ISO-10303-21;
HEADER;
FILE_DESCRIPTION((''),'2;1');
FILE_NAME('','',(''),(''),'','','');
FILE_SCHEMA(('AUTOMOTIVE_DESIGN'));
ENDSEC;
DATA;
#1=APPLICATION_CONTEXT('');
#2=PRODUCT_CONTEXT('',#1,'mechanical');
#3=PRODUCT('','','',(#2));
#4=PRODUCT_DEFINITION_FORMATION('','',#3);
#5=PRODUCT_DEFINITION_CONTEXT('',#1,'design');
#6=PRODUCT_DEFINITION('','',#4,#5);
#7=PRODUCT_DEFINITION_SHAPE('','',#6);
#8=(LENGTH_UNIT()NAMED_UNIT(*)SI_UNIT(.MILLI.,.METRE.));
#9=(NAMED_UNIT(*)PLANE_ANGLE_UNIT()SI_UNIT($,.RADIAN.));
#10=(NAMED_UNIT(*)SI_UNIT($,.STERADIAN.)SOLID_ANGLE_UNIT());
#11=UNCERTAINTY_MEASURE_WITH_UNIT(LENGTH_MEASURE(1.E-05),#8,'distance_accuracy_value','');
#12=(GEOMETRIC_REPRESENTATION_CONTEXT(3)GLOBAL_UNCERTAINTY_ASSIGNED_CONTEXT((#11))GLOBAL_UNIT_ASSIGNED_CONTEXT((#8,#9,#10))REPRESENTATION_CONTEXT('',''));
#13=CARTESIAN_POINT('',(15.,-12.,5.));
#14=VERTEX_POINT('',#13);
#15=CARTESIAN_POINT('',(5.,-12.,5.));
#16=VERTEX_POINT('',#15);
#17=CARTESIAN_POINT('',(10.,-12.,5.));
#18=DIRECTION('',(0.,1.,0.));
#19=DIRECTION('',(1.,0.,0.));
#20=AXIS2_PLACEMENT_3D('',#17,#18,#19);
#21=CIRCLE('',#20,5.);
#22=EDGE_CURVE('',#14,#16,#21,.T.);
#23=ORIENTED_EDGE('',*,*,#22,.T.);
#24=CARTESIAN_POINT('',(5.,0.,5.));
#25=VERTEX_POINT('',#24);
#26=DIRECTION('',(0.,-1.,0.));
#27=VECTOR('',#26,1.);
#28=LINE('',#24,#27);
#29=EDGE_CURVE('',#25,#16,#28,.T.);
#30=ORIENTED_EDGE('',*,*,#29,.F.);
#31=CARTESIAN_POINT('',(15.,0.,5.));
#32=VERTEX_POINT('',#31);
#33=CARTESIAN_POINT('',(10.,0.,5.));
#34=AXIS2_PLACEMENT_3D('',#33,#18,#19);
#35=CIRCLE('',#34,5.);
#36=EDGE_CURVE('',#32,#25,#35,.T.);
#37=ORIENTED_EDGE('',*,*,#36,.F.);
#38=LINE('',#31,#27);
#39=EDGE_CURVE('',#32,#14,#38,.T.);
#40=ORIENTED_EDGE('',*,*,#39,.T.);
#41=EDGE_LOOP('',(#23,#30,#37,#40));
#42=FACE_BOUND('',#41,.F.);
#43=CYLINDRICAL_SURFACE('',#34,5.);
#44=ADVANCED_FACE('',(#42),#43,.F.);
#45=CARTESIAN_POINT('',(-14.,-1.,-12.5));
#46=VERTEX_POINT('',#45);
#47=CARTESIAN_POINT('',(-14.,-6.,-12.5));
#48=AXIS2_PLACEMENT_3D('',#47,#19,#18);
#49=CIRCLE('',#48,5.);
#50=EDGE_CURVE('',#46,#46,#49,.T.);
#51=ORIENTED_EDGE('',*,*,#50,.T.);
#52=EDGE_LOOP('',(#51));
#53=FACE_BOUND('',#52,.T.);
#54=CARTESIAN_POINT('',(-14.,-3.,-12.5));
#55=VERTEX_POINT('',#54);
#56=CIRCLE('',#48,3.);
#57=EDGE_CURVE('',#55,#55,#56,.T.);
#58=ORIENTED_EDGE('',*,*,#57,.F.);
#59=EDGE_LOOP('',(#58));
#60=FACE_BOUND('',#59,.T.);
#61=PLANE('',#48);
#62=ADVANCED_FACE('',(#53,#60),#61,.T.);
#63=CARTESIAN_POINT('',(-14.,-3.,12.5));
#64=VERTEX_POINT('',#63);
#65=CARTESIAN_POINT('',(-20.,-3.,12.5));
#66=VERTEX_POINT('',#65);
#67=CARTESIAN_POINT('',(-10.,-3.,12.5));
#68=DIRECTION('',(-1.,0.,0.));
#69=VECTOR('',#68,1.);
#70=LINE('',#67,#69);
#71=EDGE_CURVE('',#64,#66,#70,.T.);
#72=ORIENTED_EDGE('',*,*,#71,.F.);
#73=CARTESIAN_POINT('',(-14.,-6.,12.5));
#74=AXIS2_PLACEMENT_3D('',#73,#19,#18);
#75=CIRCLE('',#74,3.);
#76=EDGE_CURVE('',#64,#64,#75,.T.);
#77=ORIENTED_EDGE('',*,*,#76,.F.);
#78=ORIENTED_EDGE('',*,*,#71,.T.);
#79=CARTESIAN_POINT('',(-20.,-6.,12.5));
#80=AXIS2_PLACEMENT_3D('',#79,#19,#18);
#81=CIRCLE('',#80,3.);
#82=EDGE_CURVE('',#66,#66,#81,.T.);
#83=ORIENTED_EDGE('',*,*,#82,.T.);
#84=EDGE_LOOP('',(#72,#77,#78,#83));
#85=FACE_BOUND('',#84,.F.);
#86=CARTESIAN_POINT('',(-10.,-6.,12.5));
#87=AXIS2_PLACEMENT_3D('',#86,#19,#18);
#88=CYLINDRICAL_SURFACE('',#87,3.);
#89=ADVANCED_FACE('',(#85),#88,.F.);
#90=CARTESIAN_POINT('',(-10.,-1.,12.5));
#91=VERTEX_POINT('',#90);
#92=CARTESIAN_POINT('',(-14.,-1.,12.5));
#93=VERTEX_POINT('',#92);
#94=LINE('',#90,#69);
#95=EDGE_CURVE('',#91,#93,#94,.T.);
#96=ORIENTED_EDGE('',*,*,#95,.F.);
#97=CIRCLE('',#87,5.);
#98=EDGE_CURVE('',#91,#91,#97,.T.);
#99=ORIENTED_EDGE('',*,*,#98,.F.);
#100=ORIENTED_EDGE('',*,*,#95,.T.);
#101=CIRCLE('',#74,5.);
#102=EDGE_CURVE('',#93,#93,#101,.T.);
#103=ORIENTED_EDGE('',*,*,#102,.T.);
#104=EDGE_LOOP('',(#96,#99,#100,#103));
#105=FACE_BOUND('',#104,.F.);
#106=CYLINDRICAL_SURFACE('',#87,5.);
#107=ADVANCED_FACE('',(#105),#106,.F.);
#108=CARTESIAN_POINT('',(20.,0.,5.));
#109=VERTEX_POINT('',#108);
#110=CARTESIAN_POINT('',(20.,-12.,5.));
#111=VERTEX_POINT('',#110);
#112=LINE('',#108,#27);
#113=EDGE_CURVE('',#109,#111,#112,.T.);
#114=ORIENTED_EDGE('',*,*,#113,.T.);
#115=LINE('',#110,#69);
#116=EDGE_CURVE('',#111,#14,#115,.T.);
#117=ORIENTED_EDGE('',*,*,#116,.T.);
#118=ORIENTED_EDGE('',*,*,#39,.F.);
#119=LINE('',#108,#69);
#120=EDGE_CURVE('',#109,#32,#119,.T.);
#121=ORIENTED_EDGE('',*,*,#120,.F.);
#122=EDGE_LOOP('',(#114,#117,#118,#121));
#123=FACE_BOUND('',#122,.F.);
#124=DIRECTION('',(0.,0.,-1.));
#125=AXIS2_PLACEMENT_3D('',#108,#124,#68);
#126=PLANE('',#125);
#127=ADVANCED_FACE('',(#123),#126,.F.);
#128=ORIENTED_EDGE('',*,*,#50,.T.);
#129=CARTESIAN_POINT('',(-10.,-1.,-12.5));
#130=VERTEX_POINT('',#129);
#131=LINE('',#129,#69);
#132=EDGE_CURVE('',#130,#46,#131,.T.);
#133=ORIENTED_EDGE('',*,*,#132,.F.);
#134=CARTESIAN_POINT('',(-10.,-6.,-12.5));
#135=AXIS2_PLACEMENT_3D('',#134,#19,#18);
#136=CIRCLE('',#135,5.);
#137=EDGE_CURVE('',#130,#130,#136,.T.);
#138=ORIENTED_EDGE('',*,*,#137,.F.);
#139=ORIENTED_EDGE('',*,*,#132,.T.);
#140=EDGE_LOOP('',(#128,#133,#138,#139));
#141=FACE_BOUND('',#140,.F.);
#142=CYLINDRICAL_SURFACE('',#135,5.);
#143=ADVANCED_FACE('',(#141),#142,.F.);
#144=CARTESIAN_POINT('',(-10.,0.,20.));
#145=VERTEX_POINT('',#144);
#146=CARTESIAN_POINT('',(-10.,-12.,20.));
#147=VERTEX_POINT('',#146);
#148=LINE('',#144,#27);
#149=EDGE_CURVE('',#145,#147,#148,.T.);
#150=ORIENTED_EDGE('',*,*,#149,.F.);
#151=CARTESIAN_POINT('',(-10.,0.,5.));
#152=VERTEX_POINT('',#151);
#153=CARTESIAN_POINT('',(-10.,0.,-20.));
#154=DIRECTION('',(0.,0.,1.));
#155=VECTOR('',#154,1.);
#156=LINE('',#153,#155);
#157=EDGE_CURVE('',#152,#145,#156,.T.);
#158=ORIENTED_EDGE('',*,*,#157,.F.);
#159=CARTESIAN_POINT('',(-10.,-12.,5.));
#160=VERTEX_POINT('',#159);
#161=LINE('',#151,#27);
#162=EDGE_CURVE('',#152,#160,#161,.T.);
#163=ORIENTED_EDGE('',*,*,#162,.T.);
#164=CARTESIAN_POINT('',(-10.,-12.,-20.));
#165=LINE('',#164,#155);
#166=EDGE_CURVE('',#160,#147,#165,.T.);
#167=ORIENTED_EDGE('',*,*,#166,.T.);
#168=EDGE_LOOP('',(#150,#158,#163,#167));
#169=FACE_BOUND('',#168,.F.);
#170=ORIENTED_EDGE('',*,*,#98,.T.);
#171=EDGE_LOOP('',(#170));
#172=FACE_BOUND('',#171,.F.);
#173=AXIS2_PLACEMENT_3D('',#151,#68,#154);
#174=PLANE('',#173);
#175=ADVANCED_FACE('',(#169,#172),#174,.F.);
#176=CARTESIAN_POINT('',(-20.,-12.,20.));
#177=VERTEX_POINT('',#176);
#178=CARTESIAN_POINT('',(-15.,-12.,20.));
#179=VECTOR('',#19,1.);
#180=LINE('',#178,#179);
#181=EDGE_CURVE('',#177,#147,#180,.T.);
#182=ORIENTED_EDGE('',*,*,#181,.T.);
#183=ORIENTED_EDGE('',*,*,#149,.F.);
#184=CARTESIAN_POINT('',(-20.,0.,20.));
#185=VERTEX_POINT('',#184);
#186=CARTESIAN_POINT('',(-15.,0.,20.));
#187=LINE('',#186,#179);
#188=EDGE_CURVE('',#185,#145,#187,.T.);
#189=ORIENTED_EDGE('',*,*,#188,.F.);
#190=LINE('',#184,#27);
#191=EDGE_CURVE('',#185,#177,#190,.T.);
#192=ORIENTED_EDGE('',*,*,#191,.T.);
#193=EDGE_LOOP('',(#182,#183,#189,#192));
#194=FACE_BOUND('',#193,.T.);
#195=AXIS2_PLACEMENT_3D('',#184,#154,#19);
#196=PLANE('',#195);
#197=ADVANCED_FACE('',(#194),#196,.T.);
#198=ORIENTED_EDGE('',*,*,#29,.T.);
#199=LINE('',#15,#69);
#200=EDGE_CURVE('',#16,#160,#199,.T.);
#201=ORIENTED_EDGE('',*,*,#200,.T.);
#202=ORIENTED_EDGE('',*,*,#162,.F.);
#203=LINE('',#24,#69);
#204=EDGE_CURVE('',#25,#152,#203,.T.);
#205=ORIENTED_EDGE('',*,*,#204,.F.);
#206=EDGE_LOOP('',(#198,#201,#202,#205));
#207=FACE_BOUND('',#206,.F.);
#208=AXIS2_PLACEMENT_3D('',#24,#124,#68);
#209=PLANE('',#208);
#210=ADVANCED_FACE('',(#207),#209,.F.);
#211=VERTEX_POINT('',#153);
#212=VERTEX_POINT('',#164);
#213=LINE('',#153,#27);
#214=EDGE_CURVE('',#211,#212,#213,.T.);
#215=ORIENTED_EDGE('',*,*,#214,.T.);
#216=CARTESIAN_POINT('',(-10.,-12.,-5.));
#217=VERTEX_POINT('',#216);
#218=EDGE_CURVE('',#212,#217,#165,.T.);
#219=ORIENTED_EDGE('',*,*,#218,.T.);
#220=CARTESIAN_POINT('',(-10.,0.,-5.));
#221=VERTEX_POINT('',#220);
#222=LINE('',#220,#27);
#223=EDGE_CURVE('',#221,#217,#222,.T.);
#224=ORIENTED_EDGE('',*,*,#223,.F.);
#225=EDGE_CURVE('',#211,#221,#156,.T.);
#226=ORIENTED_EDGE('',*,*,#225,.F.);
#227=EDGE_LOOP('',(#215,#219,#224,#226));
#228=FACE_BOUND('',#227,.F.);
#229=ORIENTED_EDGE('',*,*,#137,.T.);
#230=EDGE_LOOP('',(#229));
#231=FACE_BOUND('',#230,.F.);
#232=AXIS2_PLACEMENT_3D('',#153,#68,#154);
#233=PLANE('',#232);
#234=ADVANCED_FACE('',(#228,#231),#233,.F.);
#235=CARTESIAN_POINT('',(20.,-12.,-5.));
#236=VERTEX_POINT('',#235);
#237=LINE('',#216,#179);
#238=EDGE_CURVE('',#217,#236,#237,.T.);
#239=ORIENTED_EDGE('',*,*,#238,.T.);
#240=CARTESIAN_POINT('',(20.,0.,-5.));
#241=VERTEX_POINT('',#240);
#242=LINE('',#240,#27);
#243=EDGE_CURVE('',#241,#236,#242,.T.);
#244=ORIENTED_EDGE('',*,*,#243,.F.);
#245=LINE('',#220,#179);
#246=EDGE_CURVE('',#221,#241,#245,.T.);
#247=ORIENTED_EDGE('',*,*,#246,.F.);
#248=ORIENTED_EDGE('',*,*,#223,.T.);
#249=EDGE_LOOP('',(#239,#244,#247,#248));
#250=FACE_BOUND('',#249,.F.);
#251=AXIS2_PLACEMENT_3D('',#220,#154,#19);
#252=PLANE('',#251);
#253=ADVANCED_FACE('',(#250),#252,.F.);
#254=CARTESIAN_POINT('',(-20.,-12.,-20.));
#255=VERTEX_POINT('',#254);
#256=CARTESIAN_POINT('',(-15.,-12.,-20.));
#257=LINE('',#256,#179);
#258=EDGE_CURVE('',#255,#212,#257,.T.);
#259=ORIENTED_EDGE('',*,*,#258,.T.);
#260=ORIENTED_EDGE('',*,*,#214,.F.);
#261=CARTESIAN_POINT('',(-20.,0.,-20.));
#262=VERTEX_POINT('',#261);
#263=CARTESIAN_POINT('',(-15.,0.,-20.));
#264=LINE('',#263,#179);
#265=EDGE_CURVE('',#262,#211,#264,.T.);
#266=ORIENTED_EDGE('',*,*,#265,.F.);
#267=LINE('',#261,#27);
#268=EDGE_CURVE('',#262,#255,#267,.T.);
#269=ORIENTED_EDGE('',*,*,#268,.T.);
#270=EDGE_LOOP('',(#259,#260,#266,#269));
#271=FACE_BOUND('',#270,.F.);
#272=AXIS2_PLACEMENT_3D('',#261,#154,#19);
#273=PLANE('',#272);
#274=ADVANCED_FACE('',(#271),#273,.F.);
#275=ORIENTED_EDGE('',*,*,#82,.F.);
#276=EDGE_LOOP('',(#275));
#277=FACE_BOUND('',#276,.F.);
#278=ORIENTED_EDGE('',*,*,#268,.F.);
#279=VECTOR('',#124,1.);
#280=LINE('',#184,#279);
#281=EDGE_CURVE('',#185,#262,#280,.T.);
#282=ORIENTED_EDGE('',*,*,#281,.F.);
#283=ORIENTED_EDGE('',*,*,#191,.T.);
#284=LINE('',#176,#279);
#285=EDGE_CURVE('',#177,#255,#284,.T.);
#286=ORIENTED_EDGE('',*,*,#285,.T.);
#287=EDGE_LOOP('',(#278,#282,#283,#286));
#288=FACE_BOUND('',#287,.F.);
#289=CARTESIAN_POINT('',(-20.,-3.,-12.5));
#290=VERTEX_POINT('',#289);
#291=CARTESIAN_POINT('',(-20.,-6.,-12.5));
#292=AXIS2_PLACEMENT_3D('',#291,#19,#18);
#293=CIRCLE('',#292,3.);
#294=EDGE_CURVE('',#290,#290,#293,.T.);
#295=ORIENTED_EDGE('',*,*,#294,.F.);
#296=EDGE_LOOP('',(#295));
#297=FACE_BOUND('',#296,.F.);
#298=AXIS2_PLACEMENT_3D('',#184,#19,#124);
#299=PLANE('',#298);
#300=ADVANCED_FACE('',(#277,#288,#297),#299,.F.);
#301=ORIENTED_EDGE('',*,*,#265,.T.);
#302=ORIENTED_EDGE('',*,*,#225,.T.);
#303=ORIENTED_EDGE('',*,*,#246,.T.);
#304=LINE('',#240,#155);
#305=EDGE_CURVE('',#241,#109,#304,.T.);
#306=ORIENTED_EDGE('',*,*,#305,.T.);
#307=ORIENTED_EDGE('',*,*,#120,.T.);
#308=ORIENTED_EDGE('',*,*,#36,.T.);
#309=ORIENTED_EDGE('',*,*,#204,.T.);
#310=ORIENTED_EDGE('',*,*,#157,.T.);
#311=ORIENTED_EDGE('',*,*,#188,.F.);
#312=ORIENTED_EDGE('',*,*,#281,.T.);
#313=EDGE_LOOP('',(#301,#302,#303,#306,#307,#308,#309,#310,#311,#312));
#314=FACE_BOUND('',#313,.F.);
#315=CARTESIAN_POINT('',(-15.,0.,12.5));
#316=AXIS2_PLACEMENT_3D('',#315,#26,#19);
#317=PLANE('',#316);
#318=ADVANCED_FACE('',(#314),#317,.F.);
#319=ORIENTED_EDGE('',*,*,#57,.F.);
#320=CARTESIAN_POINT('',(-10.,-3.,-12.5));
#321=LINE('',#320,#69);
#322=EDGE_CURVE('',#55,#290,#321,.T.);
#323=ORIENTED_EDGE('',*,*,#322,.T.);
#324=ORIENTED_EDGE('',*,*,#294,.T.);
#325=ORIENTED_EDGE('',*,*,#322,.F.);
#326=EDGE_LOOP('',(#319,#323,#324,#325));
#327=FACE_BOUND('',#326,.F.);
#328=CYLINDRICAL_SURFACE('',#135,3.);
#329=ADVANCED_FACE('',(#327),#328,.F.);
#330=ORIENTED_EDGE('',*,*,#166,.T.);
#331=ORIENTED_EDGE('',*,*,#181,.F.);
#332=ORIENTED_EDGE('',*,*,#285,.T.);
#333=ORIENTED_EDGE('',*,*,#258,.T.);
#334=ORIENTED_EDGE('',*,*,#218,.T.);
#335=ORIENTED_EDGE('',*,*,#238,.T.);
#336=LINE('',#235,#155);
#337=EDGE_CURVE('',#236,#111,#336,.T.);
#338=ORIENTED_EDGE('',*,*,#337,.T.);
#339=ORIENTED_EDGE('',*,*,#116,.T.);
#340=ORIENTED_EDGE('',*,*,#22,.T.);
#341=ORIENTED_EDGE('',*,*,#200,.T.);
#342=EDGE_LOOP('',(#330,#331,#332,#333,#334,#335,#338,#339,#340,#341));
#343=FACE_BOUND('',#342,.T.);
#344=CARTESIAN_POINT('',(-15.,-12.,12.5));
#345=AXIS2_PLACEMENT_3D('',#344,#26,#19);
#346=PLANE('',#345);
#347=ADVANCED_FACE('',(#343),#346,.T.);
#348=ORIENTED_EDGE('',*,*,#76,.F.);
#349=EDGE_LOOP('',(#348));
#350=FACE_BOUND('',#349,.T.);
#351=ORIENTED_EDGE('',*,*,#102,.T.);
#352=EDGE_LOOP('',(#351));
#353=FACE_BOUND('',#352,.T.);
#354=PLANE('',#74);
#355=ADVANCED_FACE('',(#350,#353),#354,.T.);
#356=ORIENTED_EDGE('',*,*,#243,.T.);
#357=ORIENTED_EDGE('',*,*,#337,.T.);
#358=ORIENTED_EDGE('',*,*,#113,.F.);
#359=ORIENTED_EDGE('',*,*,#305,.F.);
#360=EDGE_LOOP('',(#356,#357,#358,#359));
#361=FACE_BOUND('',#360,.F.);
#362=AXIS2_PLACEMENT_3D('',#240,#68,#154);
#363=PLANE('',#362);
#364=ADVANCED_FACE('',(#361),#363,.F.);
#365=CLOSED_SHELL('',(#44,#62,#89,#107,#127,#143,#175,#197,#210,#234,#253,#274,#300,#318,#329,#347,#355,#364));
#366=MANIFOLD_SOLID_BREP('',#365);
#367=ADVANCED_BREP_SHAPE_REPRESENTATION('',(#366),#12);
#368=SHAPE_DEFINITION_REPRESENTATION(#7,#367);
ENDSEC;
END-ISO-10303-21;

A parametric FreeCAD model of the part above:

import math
import FreeCAD as App
import Part
import Sketcher
from FreeCAD import Vector
Q = App.Units.Quantity

doc = App.newDocument("Part")
body = doc.addObject("PartDesign::Body", "Body")

sketch1 = doc.addObject("Sketcher::SketchObject", "Sketch")
body.addObject(sketch1)
sketch1.AttachmentSupport = (doc.XZ_Plane, [""])
sketch1.MapMode = "FlatFace"
sketch1.addGeometry([
    Part.LineSegment(Vector(-20, 20, 0), Vector(-20, -20, 0)),
    Part.LineSegment(Vector(-20, -20, 0), Vector(-10, -20, 0)),
    Part.LineSegment(Vector(-10, -20, 0), Vector(-10, -5, 0)),
    Part.LineSegment(Vector(-10, -5, 0), Vector(20, -5, 0)),
    Part.LineSegment(Vector(20, -5, 0), Vector(20, 5, 0)),
    Part.LineSegment(Vector(20, 5, 0), Vector(15, 5, 0)),
    Part.ArcOfCircle(Part.Circle(Vector(10, 5, 0), Vector(0, 0, 1), 5), math.radians(180), math.radians(360)),
    Part.LineSegment(Vector(5, 5, 0), Vector(-10, 5, 0)),
    Part.LineSegment(Vector(-10, 5, 0), Vector(-10, 20, 0)),
    Part.LineSegment(Vector(-10, 20, 0), Vector(-20, 20, 0)),
], False)
sketch1.addConstraint([
    Sketcher.Constraint("Coincident", 0, 2, 1, 1),
    Sketcher.Constraint("Coincident", 1, 2, 2, 1),
    Sketcher.Constraint("Coincident", 2, 2, 3, 1),
    Sketcher.Constraint("Coincident", 3, 2, 4, 1),
    Sketcher.Constraint("Coincident", 4, 2, 5, 1),
    Sketcher.Constraint("Coincident", 5, 2, 6, 2),
    Sketcher.Constraint("Coincident", 6, 1, 7, 1),
    Sketcher.Constraint("Coincident", 7, 2, 8, 1),
    Sketcher.Constraint("Coincident", 8, 2, 9, 1),
    Sketcher.Constraint("Coincident", 9, 2, 0, 1),
    Sketcher.Constraint("Vertical", 0),
    Sketcher.Constraint("Horizontal", 1),
    Sketcher.Constraint("Vertical", 2),
    Sketcher.Constraint("Horizontal", 3),
    Sketcher.Constraint("Vertical", 4),
    Sketcher.Constraint("Horizontal", 5),
    Sketcher.Constraint("Horizontal", 7),
    Sketcher.Constraint("Vertical", 8),
    Sketcher.Constraint("Horizontal", 9),
    Sketcher.Constraint("Symmetric", 2, 2, 7, 2, -1),
    Sketcher.Constraint("Horizontal", 6, 3, 4, 2),
    Sketcher.Constraint("Horizontal", 5, 2, 6, 1),
    Sketcher.Constraint("Equal", 7, 2),
    Sketcher.Constraint("Equal", 9, 4),
    Sketcher.Constraint("Equal", 2, 8),
    Sketcher.Constraint("Radius", 6, Q("5 mm")),
    Sketcher.Constraint("DistanceX", 1, 1, 1, 2, Q("10 mm")),
    Sketcher.Constraint("DistanceX", 3, 1, 3, 2, Q("30 mm")),
    Sketcher.Constraint("DistanceX", 5, 2, 5, 1, Q("5 mm")),
    Sketcher.Constraint("DistanceX", -1, 1, 6, 3, Q("10 mm")),
])
pad1 = doc.addObject("PartDesign::Pad", "Pad")
body.addObject(pad1)
pad1.Profile = sketch1
pad1.Length = 12

sketch2 = doc.addObject("Sketcher::SketchObject", "Sketch001")
body.addObject(sketch2)
sketch2.AttachmentSupport = (doc.YZ_Plane, [""])
sketch2.MapMode = "FlatFace"
sketch2.AttachmentOffset = App.Placement(Vector(0, 0, -10), App.Rotation())
sketch2.addGeometry([
    Part.Circle(Vector(-6, 12.5, 0), Vector(0, 0, 1), 3),
    Part.Circle(Vector(-6, -12.5, 0), Vector(0, 0, 1), 3),
], False)
sketch2.addConstraint([
    Sketcher.Constraint("Equal", 0, 1),
    Sketcher.Constraint("Symmetric", 0, 3, 1, 3, -1),
    Sketcher.Constraint("Diameter", 0, Q("6 mm")),
    Sketcher.Constraint("DistanceX", 0, 3, -1, 1, Q("6 mm")),
    Sketcher.Constraint("DistanceY", 1, 3, 0, 3, Q("25 mm")),
])
pocket1 = doc.addObject("PartDesign::Pocket", "Pocket")
body.addObject(pocket1)
pocket1.Profile = sketch2
pocket1.Type = "ThroughAll"

sketch3 = doc.addObject("Sketcher::SketchObject", "Sketch002")
body.addObject(sketch3)
sketch3.AttachmentSupport = (doc.YZ_Plane, [""])
sketch3.MapMode = "FlatFace"
sketch3.AttachmentOffset = App.Placement(Vector(0, 0, -10), App.Rotation())
sketch3.addGeometry([
    Part.Circle(Vector(-6, 12.5, 0), Vector(0, 0, 1), 5),
    Part.Circle(Vector(-6, 12.5, 0), Vector(0, 0, 1), 3),
], False)
sketch3.addConstraint([
    Sketcher.Constraint("Coincident", 1, 3, 0, 3),
    Sketcher.Constraint("Diameter", 0, Q("10 mm")),
    Sketcher.Constraint("Diameter", 1, Q("6 mm")),
    Sketcher.Constraint("DistanceX", 0, 3, -1, 1, Q("6 mm")),
    Sketcher.Constraint("DistanceY", -1, 1, 0, 3, Q("12.5 mm")),
])
pocket2 = doc.addObject("PartDesign::Pocket", "Pocket001")
body.addObject(pocket2)
pocket2.Profile = sketch3
pocket2.Length = 4

sketch4 = doc.addObject("Sketcher::SketchObject", "Sketch003")
body.addObject(sketch4)
sketch4.AttachmentSupport = (doc.YZ_Plane, [""])
sketch4.MapMode = "FlatFace"
sketch4.AttachmentOffset = App.Placement(Vector(0, 0, -10), App.Rotation())
sketch4.addGeometry([
    Part.Circle(Vector(-6, -12.5, 0), Vector(0, 0, 1), 5),
    Part.Circle(Vector(-6, -12.5, 0), Vector(0, 0, 1), 3),
], False)
sketch4.addConstraint([
    Sketcher.Constraint("Coincident", 1, 3, 0, 3),
    Sketcher.Constraint("Diameter", 0, Q("10 mm")),
    Sketcher.Constraint("Diameter", 1, Q("6 mm")),
    Sketcher.Constraint("DistanceX", 0, 3, -1, 1, Q("6 mm")),
    Sketcher.Constraint("DistanceY", 0, 3, -1, 1, Q("12.5 mm")),
])
pocket3 = doc.addObject("PartDesign::Pocket", "Pocket002")
body.addObject(pocket3)
pocket3.Profile = sketch4
pocket3.Length = 4

doc.recompute()
